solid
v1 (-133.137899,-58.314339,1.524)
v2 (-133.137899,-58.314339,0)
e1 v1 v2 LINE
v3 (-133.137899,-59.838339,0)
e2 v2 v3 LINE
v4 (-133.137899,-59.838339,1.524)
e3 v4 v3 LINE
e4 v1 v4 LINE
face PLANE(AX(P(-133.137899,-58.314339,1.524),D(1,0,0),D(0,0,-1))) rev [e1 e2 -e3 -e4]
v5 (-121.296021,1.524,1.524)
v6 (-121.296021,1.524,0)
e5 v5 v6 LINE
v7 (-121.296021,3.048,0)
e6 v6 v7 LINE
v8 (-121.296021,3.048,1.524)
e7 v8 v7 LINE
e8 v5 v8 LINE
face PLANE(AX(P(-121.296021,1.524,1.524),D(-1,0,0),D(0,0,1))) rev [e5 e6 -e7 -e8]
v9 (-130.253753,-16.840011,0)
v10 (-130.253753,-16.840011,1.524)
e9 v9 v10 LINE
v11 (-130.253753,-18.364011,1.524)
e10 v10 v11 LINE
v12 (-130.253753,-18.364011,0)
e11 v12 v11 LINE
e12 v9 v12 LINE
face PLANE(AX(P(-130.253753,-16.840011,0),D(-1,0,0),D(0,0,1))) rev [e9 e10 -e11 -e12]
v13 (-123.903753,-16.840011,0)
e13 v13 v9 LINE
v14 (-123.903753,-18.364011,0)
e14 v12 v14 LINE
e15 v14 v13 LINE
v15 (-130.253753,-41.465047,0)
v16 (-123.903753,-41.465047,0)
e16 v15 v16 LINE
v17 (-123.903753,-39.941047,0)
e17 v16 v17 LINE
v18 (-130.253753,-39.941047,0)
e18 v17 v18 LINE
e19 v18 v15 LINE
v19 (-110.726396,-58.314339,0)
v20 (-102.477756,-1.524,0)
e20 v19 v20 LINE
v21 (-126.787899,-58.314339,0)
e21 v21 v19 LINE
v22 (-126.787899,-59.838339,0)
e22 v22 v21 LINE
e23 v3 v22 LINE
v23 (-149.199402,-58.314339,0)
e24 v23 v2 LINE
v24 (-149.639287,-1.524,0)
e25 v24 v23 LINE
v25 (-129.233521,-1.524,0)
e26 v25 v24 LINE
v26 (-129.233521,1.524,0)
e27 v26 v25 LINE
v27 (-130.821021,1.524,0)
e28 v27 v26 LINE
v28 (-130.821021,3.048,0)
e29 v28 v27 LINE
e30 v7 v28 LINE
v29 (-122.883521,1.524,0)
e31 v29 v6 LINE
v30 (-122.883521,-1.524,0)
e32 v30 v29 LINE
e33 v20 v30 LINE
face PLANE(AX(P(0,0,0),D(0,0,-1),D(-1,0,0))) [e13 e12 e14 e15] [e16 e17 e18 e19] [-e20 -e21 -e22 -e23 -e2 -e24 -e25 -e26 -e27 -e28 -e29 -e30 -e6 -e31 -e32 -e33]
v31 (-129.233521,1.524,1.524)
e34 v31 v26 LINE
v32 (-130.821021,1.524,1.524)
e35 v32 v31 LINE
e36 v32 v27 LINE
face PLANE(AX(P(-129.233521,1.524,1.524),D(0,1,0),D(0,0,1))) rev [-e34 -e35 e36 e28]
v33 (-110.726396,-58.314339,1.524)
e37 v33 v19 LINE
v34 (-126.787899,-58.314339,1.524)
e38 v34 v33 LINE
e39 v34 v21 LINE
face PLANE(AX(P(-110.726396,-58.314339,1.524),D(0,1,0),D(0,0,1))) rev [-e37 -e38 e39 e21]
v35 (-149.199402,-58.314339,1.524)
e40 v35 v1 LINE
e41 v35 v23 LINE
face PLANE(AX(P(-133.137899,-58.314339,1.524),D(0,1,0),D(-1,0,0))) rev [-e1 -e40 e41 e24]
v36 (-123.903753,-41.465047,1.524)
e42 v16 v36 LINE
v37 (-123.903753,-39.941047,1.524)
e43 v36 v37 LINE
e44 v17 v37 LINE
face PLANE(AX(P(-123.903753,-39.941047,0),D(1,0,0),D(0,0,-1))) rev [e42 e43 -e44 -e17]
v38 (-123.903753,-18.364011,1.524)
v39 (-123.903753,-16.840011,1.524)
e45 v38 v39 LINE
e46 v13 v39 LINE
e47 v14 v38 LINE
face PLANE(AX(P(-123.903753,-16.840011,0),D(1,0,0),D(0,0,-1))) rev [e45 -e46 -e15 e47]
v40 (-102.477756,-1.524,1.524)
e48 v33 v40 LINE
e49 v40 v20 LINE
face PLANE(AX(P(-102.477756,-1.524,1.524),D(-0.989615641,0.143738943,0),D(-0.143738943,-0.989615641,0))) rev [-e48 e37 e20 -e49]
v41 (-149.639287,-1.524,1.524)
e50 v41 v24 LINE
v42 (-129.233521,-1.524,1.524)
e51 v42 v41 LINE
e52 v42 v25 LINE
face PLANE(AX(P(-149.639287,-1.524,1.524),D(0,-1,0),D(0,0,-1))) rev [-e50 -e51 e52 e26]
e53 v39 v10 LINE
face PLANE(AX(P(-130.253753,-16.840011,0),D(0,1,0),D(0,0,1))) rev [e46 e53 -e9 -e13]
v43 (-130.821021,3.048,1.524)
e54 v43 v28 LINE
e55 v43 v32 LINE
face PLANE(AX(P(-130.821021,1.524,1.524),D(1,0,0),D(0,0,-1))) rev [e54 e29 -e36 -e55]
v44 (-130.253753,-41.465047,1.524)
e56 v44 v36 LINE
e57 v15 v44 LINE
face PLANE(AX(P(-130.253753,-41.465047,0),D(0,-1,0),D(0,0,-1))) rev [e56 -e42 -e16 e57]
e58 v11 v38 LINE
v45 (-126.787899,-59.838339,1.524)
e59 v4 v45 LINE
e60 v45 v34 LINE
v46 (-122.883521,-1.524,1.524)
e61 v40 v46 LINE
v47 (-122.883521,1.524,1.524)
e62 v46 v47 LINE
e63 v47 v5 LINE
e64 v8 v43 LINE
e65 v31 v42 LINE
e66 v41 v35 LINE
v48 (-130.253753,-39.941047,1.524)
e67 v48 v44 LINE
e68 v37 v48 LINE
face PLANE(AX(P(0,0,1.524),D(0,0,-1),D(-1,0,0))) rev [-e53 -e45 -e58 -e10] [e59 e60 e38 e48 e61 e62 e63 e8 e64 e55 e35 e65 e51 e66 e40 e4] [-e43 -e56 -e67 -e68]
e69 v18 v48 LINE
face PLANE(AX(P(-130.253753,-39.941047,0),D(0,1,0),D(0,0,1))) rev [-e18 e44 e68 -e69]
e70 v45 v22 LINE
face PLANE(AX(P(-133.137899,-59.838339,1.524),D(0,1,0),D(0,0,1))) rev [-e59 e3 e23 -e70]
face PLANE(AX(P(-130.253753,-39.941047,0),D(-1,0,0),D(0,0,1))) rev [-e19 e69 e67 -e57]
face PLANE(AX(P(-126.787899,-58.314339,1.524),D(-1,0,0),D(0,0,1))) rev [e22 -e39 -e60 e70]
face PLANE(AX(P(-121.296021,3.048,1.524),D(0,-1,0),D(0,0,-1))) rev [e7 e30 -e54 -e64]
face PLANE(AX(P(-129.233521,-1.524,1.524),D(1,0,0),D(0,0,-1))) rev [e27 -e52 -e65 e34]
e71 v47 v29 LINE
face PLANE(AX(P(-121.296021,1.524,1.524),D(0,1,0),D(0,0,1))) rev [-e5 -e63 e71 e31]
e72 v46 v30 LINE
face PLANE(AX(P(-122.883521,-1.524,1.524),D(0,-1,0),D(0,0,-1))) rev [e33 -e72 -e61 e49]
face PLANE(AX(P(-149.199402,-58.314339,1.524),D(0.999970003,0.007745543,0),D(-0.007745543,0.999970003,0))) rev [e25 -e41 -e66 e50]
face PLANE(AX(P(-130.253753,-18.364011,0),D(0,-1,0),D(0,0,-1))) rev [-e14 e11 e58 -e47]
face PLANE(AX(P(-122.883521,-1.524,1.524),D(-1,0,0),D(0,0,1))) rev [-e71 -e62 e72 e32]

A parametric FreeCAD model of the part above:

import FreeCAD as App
import Part
import Sketcher

V = App.Vector
Q = App.Units.Quantity


def add_polygon(sketch, points):
    """Adds a closed chain of lines whose ends are joined by coincident constraints."""
    first, n = sketch.GeometryCount, len(points)
    for a, b in zip(points, points[1:] + points[:1]):
        sketch.addGeometry(Part.LineSegment(App.Vector(*a, 0), App.Vector(*b, 0)), False)
    for i in range(n):
        sketch.addConstraint(Sketcher.Constraint("Coincident", first + i, 2, first + (i + 1) % n, 1))

doc = App.newDocument("Part")
body = doc.addObject("PartDesign::Body", "Body")

# Sketch on XY plane
sketch1 = body.newObject("Sketcher::SketchObject", "Sketch")
sketch1.AttachmentSupport = (doc.getObject("XY_Plane"), [""])
sketch1.MapMode = "FlatFace"
add_polygon(sketch1, [(-110.7, -58.3), (-102.5, -1.5), (-122.9, -1.5), (-122.9, 1.5), (-121.3, 1.5), (-121.3, 3), (-130.8, 3), (-130.8, 1.5), (-129.2, 1.5), (-129.2, -1.5), (-149.6, -1.5), (-149.2, -58.3), (-133.1, -58.3), (-133.1, -59.8), (-126.8, -59.8), (-126.8, -58.3)])  # lines 0-15
sketch1.addConstraint([
    Sketcher.Constraint("Horizontal", 1),
    Sketcher.Constraint("Vertical", 2),
    Sketcher.Constraint("Horizontal", 3),
    Sketcher.Constraint("Vertical", 4),
    Sketcher.Constraint("Horizontal", 5),
    Sketcher.Constraint("Vertical", 6),
    Sketcher.Constraint("Horizontal", 7),
    Sketcher.Constraint("Vertical", 8),
    Sketcher.Constraint("Horizontal", 9),
    Sketcher.Constraint("Horizontal", 11),
    Sketcher.Constraint("Vertical", 12),
    Sketcher.Constraint("Horizontal", 13),
    Sketcher.Constraint("Vertical", 14),
    Sketcher.Constraint("Horizontal", 15),
    Sketcher.Constraint("Horizontal", 3, 2, 6, 2),
    Sketcher.Constraint("Horizontal", 1, 2, 8, 2),
    Sketcher.Constraint("Horizontal", 11, 2, 14, 2),
    Sketcher.Constraint("Equal", 3, 7),
    Sketcher.Constraint("Equal", 1, 9),
    Sketcher.Constraint("Equal", 11, 15),
    Sketcher.Constraint("Equal", 6, 12),
    Sketcher.Constraint("DistanceX", 13, 1, 13, 2, Q("0.25 in")),
    Sketcher.Constraint("DistanceY", 2, 1, 2, 2, Q("0.12 in")),
    Sketcher.Constraint("DistanceY", 4, 1, 4, 2, Q("0.06 in")),
    Sketcher.Constraint("DistanceX", 3, 1, 3, 2, Q("0.0625 in")),
    Sketcher.Constraint("DistanceX", 5, 2, 5, 1, Q("0.375 in")),
    Sketcher.Constraint("DistanceY", 0, 2, -1, 1, Q("0.06 in")),
    Sketcher.Constraint("DistanceX", 10, 2, -1, 1, 149.199402),
    Sketcher.Constraint("DistanceX", 11, 2, -1, 1, 133.137899),
    Sketcher.Constraint("Distance", 0, 57.386258),
    Sketcher.Constraint("DistanceX", 1, 2, 1, 1, 20.405766),
    Sketcher.Constraint("DistanceX", 1, 2, -1, 1, 122.883521),
])
pad1 = body.newObject("PartDesign::Pad", "Pad")
pad1.Profile = sketch1
pad1.Length = Q("0.06 in")

# Sketch on XY plane
sketch2 = body.newObject("Sketcher::SketchObject", "Sketch001")
sketch2.AttachmentSupport = (doc.getObject("XY_Plane"), [""])
sketch2.MapMode = "FlatFace"
sketch2.AttachmentOffset = App.Placement(V(0, 0, 0.06 * 25.4), App.Rotation())
add_polygon(sketch2, [(-130.3, -39.9), (-130.3, -41.5), (-123.9, -41.5), (-123.9, -39.9)])  # lines 0-3
add_polygon(sketch2, [(-130.3, -16.8), (-130.3, -18.4), (-123.9, -18.4), (-123.9, -16.8)])  # lines 4-7
sketch2.addConstraint([
    Sketcher.Constraint("Vertical", 0),
    Sketcher.Constraint("Horizontal", 1),
    Sketcher.Constraint("Vertical", 2),
    Sketcher.Constraint("Horizontal", 3),
    Sketcher.Constraint("Vertical", 4),
    Sketcher.Constraint("Horizontal", 5),
    Sketcher.Constraint("Vertical", 6),
    Sketcher.Constraint("Horizontal", 7),
    Sketcher.Constraint("Vertical", 3, 2, 4, 2),
    Sketcher.Constraint("Vertical", 2, 2, 5, 2),
    Sketcher.Constraint("Equal", 2, 4),
    Sketcher.Constraint("DistanceX", 1, 1, 1, 2, Q("0.25 in")),
    Sketcher.Constraint("DistanceY", 0, 2, 0, 1, Q("0.06 in")),
    Sketcher.Constraint("DistanceY", 4, 2, -1, 1, 18.364011),
    Sketcher.Constraint("DistanceX", 0, 2, -1, 1, 130.253753),
    Sketcher.Constraint("DistanceY", 0, 2, -1, 1, 41.465047),
])
pocket1 = body.newObject("PartDesign::Pocket", "Pocket")
pocket1.Profile = sketch2
pocket1.Length = Q("0.06 in")

doc.recompute()
